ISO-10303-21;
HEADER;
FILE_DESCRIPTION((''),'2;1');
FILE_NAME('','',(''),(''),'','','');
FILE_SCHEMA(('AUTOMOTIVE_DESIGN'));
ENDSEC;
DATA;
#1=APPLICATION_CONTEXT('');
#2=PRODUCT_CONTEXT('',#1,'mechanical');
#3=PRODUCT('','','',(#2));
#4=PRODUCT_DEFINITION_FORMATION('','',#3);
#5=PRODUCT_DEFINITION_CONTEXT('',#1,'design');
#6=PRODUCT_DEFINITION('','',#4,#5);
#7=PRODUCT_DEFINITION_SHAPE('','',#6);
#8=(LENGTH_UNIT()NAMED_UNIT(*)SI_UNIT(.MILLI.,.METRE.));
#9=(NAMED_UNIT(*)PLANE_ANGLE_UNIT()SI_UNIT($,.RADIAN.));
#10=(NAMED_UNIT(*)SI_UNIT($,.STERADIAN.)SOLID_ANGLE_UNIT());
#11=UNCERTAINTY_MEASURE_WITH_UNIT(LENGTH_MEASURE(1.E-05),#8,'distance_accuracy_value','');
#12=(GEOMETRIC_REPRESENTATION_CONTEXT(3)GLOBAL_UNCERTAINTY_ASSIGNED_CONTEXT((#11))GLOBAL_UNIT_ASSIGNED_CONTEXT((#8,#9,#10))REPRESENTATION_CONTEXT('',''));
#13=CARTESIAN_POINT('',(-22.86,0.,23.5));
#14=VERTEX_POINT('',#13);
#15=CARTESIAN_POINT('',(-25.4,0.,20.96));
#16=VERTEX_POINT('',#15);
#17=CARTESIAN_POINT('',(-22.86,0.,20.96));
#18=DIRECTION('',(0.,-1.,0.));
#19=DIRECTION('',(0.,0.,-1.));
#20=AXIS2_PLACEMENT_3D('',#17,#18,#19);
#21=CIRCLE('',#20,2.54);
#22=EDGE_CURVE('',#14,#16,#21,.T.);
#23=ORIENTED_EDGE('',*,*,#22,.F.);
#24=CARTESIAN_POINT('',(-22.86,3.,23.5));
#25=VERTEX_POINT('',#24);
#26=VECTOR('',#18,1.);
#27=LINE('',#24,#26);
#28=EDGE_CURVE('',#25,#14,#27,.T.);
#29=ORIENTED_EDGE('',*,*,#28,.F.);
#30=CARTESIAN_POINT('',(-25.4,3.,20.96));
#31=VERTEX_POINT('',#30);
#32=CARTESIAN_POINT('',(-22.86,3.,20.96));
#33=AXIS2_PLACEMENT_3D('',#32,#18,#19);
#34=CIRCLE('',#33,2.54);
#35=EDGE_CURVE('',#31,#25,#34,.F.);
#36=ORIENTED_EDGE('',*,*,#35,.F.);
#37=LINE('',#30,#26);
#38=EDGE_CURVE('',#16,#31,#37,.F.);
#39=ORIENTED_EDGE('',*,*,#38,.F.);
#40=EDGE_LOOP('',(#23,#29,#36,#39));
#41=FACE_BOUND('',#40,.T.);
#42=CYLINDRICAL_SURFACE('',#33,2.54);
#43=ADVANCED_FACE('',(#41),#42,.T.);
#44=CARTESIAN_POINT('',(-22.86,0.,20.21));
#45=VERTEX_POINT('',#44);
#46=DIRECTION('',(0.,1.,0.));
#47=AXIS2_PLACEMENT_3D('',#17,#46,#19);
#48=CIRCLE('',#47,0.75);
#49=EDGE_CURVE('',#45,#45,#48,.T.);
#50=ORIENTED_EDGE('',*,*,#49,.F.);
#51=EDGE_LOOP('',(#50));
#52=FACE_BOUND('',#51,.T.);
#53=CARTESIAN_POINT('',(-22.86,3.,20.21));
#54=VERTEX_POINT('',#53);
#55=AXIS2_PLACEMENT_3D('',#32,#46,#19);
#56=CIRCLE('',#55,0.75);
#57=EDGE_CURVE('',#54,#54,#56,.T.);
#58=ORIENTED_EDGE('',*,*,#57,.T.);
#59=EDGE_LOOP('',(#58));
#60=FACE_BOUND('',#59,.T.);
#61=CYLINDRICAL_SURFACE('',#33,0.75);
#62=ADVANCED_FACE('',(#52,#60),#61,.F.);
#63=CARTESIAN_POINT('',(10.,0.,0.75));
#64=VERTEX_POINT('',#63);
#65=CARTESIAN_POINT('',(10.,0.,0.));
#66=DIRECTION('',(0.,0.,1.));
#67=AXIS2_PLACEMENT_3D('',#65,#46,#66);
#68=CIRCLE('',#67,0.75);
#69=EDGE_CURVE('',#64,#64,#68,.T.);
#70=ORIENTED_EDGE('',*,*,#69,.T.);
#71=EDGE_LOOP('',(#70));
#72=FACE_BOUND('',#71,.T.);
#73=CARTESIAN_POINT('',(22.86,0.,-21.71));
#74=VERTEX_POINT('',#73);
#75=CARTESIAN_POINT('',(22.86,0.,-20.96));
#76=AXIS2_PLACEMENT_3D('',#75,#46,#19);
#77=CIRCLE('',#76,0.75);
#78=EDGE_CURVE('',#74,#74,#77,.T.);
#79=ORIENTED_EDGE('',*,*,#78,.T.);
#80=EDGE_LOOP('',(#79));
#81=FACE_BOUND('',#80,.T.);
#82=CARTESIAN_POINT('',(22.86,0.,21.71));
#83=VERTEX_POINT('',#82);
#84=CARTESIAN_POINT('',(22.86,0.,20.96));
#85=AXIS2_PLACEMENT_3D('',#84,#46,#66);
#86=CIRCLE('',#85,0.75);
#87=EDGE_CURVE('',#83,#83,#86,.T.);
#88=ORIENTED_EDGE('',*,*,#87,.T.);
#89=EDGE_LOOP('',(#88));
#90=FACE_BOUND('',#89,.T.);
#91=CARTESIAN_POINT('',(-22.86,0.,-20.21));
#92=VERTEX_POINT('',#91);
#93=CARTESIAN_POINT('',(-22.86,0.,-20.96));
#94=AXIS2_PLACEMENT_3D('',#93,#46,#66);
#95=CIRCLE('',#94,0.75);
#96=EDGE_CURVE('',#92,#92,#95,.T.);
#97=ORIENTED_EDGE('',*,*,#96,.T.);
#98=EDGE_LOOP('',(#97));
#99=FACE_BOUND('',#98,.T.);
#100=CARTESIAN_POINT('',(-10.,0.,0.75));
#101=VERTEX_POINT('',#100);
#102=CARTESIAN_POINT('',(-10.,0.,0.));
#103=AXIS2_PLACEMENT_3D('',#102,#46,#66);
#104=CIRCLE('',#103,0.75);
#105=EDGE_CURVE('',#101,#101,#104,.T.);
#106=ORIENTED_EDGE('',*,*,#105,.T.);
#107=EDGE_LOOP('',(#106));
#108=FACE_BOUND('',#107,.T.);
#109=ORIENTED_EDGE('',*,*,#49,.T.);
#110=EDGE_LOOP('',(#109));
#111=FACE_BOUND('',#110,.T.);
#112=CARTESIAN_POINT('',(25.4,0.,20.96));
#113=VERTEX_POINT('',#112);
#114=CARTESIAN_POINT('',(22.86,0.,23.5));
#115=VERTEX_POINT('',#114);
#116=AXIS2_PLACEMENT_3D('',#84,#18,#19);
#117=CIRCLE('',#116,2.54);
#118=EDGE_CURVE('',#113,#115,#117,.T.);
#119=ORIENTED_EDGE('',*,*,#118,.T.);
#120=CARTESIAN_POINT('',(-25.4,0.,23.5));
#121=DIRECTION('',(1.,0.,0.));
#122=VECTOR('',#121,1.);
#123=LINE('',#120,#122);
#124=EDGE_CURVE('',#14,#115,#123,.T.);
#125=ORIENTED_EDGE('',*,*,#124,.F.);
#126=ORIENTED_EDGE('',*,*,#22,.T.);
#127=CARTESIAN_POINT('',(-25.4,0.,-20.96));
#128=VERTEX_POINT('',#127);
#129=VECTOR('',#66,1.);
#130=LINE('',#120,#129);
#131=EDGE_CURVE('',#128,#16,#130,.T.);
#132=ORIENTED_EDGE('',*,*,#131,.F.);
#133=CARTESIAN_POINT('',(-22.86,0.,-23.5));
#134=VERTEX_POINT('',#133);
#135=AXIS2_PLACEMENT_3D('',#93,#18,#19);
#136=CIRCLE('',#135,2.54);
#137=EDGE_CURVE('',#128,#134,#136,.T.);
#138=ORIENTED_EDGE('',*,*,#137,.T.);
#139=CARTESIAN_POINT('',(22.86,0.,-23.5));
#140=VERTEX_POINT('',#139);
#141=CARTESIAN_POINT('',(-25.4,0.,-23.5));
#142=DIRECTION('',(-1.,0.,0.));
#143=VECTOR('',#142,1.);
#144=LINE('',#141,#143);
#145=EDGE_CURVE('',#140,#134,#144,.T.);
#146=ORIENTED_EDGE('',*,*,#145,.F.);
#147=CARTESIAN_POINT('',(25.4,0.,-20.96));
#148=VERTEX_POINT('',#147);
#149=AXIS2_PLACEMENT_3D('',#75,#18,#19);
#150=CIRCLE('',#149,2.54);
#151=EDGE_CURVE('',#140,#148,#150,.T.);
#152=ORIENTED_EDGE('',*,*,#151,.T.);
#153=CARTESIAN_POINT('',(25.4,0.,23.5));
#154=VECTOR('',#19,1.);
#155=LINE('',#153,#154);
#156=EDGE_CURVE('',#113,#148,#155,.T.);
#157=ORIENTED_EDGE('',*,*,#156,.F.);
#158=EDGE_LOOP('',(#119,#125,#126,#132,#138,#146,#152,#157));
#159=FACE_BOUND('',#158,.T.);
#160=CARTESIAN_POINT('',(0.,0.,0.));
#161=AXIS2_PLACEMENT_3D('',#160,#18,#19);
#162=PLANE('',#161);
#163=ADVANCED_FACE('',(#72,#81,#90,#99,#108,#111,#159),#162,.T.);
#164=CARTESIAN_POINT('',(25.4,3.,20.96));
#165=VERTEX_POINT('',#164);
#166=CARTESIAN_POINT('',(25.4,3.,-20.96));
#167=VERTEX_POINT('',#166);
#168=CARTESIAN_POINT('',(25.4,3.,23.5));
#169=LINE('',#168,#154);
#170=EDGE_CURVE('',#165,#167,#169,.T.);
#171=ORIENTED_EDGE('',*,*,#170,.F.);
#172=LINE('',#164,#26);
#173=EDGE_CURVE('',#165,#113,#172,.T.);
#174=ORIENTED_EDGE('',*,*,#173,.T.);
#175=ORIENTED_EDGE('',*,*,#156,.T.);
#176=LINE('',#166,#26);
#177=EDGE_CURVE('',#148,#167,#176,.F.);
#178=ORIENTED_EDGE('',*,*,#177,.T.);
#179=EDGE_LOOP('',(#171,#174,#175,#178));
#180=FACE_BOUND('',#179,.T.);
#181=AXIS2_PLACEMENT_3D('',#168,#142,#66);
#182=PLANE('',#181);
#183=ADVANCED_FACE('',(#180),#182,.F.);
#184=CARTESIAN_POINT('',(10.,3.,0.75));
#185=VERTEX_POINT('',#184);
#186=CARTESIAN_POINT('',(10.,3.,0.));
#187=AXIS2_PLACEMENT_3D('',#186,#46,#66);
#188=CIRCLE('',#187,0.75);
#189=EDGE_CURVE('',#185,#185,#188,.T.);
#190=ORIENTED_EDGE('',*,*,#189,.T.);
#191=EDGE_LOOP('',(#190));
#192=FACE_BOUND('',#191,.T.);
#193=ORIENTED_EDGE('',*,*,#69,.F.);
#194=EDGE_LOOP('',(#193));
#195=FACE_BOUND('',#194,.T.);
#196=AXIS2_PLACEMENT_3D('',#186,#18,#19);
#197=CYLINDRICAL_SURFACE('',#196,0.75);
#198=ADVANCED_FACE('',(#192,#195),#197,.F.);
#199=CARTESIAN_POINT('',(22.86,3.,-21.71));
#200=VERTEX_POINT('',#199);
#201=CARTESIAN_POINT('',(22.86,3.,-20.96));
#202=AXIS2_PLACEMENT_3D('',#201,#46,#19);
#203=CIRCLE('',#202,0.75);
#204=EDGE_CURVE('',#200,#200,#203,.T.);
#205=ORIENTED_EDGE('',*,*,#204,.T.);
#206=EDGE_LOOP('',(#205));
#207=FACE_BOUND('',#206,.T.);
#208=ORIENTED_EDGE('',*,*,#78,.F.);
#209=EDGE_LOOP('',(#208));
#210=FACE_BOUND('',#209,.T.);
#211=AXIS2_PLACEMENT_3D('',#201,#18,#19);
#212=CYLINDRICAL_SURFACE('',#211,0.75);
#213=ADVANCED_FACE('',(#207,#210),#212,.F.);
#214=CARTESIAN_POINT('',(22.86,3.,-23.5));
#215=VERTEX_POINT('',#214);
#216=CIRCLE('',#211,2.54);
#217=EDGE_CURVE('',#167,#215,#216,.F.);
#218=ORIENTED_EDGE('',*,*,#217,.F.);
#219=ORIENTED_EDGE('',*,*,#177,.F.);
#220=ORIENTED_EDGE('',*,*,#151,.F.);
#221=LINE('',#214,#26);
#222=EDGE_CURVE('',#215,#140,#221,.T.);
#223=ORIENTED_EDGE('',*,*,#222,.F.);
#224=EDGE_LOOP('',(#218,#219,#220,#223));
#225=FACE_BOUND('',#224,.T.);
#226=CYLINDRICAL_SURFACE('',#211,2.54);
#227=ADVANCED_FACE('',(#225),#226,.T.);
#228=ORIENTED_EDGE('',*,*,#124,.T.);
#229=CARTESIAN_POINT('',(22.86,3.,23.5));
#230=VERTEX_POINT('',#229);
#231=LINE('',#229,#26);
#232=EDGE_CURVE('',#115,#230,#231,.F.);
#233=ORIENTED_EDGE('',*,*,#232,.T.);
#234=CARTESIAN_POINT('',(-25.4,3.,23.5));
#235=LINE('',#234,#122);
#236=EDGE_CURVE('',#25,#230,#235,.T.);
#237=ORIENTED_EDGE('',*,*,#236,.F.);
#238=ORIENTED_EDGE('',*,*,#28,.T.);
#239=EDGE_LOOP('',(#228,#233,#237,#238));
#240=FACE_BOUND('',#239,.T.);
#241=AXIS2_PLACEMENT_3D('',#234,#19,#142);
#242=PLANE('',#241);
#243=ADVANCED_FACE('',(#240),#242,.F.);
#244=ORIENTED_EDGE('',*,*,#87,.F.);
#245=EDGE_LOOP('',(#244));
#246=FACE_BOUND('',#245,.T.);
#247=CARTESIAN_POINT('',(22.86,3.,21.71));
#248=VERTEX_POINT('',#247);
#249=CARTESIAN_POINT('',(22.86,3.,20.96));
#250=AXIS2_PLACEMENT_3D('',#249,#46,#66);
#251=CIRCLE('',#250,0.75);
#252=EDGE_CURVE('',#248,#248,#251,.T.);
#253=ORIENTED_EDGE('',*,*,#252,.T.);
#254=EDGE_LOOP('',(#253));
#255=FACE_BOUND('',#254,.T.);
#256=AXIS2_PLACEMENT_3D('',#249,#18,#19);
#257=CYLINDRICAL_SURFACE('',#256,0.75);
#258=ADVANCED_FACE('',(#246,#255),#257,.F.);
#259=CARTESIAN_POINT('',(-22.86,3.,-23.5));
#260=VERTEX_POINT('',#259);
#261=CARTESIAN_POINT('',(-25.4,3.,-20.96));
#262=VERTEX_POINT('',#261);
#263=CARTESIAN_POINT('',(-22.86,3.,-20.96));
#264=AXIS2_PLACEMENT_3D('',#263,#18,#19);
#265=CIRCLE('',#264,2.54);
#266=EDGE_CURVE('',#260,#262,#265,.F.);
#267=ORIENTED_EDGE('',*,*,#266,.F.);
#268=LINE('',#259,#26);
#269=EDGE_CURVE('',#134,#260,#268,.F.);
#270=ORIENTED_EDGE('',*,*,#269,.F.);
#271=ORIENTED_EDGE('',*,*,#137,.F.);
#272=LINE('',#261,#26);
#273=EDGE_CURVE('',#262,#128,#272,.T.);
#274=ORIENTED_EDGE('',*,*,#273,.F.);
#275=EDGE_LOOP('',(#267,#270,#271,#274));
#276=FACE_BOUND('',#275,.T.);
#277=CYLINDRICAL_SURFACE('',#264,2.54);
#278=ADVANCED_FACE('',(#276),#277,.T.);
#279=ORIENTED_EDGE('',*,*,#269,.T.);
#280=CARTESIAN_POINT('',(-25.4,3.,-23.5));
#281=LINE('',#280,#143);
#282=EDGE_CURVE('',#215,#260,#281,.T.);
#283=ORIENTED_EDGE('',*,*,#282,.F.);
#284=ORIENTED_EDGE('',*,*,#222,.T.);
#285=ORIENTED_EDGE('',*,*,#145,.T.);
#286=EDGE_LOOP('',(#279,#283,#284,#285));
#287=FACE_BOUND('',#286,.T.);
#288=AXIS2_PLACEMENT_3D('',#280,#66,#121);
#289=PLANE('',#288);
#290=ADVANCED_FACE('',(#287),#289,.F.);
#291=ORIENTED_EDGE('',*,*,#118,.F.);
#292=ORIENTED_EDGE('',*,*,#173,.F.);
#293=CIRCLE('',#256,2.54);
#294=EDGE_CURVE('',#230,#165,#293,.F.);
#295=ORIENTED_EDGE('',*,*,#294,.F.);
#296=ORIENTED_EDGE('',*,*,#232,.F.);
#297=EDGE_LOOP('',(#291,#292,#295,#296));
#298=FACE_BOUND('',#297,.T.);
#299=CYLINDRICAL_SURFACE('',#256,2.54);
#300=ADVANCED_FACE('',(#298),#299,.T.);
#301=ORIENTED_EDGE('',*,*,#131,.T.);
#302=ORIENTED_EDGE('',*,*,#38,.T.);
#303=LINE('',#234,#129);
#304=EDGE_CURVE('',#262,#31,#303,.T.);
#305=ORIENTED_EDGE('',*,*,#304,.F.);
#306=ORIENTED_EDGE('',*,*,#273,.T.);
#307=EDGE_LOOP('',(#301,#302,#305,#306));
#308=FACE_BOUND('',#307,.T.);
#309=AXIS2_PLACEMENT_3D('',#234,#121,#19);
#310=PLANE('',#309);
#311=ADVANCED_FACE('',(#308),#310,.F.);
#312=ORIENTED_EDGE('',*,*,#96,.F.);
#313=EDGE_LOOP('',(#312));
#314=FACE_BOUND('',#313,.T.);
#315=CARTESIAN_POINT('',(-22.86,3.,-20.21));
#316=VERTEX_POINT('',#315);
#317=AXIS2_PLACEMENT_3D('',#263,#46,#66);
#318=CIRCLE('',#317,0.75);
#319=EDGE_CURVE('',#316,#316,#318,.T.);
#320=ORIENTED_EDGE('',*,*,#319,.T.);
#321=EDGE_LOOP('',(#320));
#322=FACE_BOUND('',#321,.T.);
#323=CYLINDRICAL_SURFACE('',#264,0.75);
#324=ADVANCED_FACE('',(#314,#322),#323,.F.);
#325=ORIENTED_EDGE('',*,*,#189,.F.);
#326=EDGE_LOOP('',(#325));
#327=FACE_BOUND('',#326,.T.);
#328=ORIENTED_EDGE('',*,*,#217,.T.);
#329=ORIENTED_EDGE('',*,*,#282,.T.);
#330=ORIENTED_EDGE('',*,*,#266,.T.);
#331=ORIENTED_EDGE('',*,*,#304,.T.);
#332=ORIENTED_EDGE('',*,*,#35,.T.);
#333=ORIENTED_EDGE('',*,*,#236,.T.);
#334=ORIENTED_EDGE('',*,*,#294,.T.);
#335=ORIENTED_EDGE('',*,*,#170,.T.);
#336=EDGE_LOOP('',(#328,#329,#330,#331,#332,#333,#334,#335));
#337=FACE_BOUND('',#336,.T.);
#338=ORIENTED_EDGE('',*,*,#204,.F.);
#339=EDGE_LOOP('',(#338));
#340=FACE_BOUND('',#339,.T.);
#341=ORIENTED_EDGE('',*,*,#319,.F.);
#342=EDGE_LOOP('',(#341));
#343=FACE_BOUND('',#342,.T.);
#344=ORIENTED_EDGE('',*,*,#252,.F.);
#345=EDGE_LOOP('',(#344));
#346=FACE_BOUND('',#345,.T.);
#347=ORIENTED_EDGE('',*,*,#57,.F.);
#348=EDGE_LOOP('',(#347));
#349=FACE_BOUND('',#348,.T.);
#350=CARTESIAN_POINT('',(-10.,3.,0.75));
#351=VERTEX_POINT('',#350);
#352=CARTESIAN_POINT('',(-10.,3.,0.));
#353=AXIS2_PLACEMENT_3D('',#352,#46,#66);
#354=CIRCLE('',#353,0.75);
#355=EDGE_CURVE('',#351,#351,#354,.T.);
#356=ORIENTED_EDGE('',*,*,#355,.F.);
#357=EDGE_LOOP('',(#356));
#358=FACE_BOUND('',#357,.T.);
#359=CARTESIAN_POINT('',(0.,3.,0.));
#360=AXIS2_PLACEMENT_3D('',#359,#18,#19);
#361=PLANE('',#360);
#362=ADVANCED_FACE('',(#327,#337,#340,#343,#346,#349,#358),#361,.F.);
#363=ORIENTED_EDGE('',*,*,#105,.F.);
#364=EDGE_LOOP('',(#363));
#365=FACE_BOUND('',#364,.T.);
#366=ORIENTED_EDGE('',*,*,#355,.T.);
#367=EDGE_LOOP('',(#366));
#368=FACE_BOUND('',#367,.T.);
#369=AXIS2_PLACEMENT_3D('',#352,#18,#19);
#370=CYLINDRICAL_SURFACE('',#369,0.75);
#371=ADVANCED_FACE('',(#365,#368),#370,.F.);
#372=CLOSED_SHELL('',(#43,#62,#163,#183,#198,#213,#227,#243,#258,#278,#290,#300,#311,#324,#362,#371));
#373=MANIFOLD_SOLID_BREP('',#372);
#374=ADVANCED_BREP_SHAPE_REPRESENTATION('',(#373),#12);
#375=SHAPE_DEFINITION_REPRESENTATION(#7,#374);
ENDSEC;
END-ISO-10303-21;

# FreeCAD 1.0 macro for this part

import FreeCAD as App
import Part
import Sketcher

V = App.Vector
Q = App.Units.Quantity


def edges_at(feature, points):
    """Names of the edges that pass closest to the given points."""
    edges = feature.Shape.Edges
    near = lambda p: min(range(len(edges)), key=lambda i: edges[i].distToShape(Part.Vertex(*p))[0])
    return sorted({f"Edge{near(p) + 1}" for p in points})

doc = App.newDocument("Part")
params = doc.addObject("Spreadsheet::Sheet", "Params")
for row, (alias, value) in enumerate([
    ("sketch1_diameter", "1.5 mm"),
    ("sketch1_height", "47 mm"),
    ("sketch1_width", "50.8 mm"),
    ("pad1_length", "3 mm"),
    ("fillet_radius", "2.54 mm"),
], start=1):
    params.set(f"A{row}", alias)
    params.set(f"B{row}", "=" + value)
    params.setAlias(f"B{row}", alias)

body = doc.addObject("PartDesign::Body", "Body")

# Sketch on XZ plane
sketch1 = body.newObject("Sketcher::SketchObject", "Sketch")
sketch1.AttachmentSupport = (doc.getObject("XZ_Plane"), [""])
sketch1.MapMode = "FlatFace"
sketch1.addGeometry([
    Part.LineSegment(V(-25.4, -23.5, 0), V(-25.4, 23.5, 0)),  # 0
    Part.LineSegment(V(-25.4, 23.5, 0), V(25.4, 23.5, 0)),  # 1
    Part.LineSegment(V(25.4, 23.5, 0), V(25.4, -23.5, 0)),  # 2
    Part.LineSegment(V(25.4, -23.5, 0), V(-25.4, -23.5, 0)),  # 3
    Part.Circle(V(-22.86, 20.96, 0), V(0, 0, 1), 0.75),  # 4
    Part.Circle(V(22.86, 20.96, 0), V(0, 0, 1), 0.75),  # 5
    Part.Circle(V(-10, 0, 0), V(0, 0, 1), 0.75),  # 6
    Part.Circle(V(-22.86, -20.96, 0), V(0, 0, 1), 0.75),  # 7
    Part.Circle(V(10, 0, 0), V(0, 0, 1), 0.75),  # 8
    Part.Circle(V(22.86, -20.96, 0), V(0, 0, 1), 0.75),  # 9
], False)
sketch1.addConstraint([
    Sketcher.Constraint("Coincident", 0, 2, 1, 1),
    Sketcher.Constraint("Coincident", 1, 2, 2, 1),
    Sketcher.Constraint("Coincident", 2, 2, 3, 1),
    Sketcher.Constraint("Coincident", 3, 2, 0, 1),
    Sketcher.Constraint("Vertical", 0),
    Sketcher.Constraint("Horizontal", 1),
    Sketcher.Constraint("Vertical", 2),
    Sketcher.Constraint("Horizontal", 3),
    Sketcher.Constraint("Equal", 4, 5),
    Sketcher.Constraint("Equal", 5, 6),
    Sketcher.Constraint("Equal", 6, 7),
    Sketcher.Constraint("Equal", 7, 8),
    Sketcher.Constraint("Equal", 8, 9),
    Sketcher.Constraint("Symmetric", 5, 3, 7, 3, -1, 1),
    Sketcher.Constraint("Symmetric", 6, 3, 8, 3, -1, 1),
    Sketcher.Constraint("Symmetric", 4, 3, 9, 3, -1, 1),
    Sketcher.Constraint("Symmetric", 0, 2, 2, 2, -1, 1),
    Sketcher.Constraint("Symmetric", 4, 3, 5, 3, -2),
    Sketcher.Constraint("PointOnObject", 6, 3, -1),
    Sketcher.Constraint("Diameter", 4, Q("1.5 mm")),
    Sketcher.Constraint("DistanceY", 0, 1, 0, 2, Q("47 mm")),
    Sketcher.Constraint("DistanceX", 1, 1, 1, 2, Q("50.8 mm")),
    Sketcher.Constraint("DistanceX", 6, 3, -1, 1, Q("10 mm")),
    Sketcher.Constraint("DistanceX", 4, 3, -1, 1, Q("22.86 mm")),
    Sketcher.Constraint("DistanceY", -1, 1, 4, 3, Q("20.96 mm")),
])
sketch1.setExpression("Constraints[19]", "Params.sketch1_diameter")
sketch1.setExpression("Constraints[20]", "Params.sketch1_height")
sketch1.setExpression("Constraints[21]", "Params.sketch1_width")
pad1 = body.newObject("PartDesign::Pad", "Pad")
pad1.Profile = sketch1
pad1.setExpression("Length", "Params.pad1_length")
pad1.Reversed = True
doc.recompute()

fillet = body.newObject("PartDesign::Fillet", "Fillet")
fillet.Base = (pad1, edges_at(pad1, [
    (-25.4, 1.5, -23.5),
    (25.4, 1.5, -23.5),
    (25.4, 1.5, 23.5),
    (-25.4, 1.5, 23.5),
]))
fillet.setExpression("Radius", "Params.fillet_radius")

doc.recompute()
